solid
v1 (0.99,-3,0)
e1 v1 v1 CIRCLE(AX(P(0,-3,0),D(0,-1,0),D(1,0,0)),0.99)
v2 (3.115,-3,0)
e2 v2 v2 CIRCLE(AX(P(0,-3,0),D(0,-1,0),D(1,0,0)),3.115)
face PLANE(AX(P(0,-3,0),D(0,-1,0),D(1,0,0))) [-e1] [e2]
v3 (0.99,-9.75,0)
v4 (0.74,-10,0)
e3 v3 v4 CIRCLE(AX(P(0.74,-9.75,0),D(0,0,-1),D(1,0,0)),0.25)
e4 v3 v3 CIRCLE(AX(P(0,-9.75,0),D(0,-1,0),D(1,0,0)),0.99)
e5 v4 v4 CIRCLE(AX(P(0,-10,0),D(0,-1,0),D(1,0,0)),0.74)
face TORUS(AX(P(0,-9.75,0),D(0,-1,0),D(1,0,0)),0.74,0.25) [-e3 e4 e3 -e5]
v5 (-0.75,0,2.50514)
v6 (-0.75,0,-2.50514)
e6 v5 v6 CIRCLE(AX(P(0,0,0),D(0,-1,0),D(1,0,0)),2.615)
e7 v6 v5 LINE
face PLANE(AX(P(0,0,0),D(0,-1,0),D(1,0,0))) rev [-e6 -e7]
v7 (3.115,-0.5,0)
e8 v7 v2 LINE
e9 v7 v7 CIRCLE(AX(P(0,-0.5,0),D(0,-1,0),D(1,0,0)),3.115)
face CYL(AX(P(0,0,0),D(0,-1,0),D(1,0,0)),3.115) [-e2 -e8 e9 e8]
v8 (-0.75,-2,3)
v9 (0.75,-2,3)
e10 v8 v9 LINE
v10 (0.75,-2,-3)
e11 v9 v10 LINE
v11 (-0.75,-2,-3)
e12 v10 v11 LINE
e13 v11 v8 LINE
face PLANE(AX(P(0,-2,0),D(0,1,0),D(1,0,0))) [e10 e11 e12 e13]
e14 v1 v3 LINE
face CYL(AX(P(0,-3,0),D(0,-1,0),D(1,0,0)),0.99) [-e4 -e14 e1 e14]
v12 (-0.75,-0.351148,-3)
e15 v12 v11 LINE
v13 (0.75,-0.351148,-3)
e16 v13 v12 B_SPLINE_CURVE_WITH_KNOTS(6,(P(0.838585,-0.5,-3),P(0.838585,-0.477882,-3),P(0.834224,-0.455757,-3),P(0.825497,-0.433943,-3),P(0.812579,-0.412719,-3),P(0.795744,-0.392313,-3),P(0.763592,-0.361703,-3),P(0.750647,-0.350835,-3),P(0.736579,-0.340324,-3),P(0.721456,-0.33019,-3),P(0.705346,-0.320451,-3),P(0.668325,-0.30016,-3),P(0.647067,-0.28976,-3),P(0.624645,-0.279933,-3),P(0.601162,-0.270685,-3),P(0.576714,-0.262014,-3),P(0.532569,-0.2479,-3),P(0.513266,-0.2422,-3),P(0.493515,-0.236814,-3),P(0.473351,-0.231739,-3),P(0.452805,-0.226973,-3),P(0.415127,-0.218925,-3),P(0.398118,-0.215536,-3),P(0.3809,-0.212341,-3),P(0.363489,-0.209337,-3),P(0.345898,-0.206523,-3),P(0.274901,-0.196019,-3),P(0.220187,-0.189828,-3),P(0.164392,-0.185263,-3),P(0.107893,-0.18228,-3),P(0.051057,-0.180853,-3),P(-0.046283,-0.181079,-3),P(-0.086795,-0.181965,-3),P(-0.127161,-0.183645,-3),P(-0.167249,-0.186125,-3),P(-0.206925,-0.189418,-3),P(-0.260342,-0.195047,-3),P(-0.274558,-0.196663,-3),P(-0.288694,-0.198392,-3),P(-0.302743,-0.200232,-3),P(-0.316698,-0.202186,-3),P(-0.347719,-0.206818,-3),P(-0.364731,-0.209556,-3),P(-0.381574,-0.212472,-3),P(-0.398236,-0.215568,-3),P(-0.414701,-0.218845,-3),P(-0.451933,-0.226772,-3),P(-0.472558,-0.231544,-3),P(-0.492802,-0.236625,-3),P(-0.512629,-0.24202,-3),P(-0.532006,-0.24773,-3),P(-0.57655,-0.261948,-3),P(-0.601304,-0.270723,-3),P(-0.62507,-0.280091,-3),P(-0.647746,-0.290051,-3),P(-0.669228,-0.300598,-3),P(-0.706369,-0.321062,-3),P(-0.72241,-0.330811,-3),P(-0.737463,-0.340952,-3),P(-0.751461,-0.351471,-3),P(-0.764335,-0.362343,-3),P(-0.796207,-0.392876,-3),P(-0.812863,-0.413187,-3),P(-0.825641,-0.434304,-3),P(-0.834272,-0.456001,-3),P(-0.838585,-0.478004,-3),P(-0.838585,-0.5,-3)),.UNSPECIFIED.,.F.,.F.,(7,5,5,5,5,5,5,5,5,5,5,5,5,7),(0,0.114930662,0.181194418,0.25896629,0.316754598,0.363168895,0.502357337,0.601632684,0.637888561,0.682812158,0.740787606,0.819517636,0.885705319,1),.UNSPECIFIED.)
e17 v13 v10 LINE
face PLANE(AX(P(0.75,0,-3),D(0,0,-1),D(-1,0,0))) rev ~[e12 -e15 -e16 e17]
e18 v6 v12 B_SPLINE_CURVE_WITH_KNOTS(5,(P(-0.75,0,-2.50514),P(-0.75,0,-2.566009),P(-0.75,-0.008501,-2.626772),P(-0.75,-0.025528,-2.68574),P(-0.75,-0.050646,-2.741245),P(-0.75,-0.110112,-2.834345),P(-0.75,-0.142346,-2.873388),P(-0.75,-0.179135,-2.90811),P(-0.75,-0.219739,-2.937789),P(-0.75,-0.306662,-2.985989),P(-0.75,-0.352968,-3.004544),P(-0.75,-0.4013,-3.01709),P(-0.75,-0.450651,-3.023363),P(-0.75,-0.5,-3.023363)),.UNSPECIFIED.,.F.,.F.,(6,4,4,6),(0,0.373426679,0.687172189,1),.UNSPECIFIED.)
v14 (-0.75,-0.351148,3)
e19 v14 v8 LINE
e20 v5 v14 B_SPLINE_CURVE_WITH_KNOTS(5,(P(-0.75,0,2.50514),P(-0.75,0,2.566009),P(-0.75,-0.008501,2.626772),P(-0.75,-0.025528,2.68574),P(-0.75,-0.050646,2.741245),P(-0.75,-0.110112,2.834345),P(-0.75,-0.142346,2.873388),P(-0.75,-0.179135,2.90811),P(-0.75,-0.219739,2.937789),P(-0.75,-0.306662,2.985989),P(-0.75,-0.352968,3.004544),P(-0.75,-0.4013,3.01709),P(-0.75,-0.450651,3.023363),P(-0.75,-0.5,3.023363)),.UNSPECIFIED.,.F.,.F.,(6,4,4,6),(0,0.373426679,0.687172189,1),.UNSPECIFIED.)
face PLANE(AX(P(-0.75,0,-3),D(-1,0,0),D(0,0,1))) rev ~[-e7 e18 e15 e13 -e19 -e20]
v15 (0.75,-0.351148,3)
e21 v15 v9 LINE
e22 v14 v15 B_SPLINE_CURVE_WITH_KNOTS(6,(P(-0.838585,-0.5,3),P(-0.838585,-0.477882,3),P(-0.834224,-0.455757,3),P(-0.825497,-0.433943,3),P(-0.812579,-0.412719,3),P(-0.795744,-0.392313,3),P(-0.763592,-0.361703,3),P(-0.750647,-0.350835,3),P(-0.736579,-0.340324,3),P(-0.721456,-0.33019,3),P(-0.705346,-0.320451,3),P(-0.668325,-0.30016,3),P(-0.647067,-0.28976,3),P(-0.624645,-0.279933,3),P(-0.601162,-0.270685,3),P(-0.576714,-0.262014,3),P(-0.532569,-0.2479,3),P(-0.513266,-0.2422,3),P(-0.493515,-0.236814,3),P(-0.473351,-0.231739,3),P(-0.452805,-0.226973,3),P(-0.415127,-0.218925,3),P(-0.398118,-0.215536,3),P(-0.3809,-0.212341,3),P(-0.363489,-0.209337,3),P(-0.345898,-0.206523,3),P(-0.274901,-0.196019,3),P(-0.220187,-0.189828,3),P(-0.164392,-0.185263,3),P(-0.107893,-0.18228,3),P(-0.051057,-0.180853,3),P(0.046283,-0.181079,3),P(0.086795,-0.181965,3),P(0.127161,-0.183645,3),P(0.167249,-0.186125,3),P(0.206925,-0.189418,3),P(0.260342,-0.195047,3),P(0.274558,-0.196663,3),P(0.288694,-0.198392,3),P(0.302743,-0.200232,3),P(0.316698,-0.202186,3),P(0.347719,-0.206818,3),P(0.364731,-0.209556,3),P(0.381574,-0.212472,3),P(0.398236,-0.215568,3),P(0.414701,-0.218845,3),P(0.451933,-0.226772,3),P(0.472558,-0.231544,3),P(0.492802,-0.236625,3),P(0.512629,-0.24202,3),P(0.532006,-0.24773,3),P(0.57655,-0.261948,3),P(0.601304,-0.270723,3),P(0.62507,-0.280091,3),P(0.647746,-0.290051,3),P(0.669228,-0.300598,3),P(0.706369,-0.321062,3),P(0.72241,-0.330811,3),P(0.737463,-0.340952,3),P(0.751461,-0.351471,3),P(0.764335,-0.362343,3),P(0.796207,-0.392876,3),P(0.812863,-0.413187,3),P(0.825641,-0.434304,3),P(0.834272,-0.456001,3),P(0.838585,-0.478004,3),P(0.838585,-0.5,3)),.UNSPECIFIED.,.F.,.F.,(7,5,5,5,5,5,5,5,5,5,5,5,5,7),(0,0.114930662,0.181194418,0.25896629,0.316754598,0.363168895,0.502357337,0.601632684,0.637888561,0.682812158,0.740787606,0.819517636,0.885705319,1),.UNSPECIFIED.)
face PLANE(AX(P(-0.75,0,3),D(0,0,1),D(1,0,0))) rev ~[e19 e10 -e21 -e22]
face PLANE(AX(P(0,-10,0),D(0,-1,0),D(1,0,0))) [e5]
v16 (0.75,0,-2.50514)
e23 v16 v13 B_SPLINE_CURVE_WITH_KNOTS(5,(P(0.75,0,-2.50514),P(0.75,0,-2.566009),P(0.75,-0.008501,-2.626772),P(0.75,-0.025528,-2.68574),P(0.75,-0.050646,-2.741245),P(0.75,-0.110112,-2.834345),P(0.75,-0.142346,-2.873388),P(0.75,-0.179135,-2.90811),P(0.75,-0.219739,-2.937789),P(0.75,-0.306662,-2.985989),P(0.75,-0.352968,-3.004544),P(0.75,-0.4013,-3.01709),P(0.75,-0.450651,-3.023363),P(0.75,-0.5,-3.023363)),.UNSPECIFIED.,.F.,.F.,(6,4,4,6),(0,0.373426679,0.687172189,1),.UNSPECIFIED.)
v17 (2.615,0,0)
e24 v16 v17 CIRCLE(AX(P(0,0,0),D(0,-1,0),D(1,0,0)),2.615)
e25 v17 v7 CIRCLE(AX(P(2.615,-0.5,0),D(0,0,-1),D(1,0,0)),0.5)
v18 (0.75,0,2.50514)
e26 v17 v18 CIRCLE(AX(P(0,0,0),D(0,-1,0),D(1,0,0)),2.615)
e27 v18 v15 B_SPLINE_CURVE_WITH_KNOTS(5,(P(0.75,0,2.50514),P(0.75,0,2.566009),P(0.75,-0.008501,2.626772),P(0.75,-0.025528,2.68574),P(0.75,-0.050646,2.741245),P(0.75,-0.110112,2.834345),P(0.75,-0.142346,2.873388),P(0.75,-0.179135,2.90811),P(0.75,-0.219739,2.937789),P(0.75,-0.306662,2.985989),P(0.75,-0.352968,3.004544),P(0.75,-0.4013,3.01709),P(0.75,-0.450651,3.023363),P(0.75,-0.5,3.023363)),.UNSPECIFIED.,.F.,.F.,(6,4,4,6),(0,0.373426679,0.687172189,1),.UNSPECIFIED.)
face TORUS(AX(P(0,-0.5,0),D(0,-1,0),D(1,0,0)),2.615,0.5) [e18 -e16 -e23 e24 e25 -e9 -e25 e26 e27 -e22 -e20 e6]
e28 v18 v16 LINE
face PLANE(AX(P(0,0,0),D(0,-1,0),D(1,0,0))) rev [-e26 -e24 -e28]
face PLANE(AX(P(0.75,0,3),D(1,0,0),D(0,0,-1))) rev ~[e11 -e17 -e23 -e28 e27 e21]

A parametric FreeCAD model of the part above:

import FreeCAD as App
import Part
import Sketcher


def edges_at(feature, points):
    """Names of the edges that pass closest to the given points."""
    edges = feature.Shape.Edges
    near = lambda p: min(range(len(edges)), key=lambda i: edges[i].distToShape(Part.Vertex(*p))[0])
    return sorted({f"Edge{near(p) + 1}" for p in points})

doc = App.newDocument("Part")
body = doc.addObject("PartDesign::Body", "Body")

sketch1 = body.newObject("Sketcher::SketchObject", "Sketch")
sketch1.AttachmentSupport = (doc.getObject("XY_Plane"), [""])
sketch1.MapMode = "FlatFace"
sketch1.addGeometry(Part.LineSegment(App.Vector(3.115, 0, 0), App.Vector(0, 0, 0)), False)
sketch1.addGeometry(Part.LineSegment(App.Vector(0, 0, 0), App.Vector(0, -10, 0)), False)
sketch1.addGeometry(Part.LineSegment(App.Vector(0, -10, 0), App.Vector(0.99, -10, 0)), False)
sketch1.addGeometry(Part.LineSegment(App.Vector(0.99, -10, 0), App.Vector(0.99, -3, 0)), False)
sketch1.addGeometry(Part.LineSegment(App.Vector(0.99, -3, 0), App.Vector(3.115, -3, 0)), False)
sketch1.addGeometry(Part.LineSegment(App.Vector(3.115, -3, 0), App.Vector(3.115, 0, 0)), False)
sketch1.addConstraint(Sketcher.Constraint("Coincident", 0, 2, 1, 1))
sketch1.addConstraint(Sketcher.Constraint("Coincident", 1, 2, 2, 1))
sketch1.addConstraint(Sketcher.Constraint("Coincident", 2, 2, 3, 1))
sketch1.addConstraint(Sketcher.Constraint("Coincident", 3, 2, 4, 1))
sketch1.addConstraint(Sketcher.Constraint("Coincident", 4, 2, 5, 1))
sketch1.addConstraint(Sketcher.Constraint("Coincident", 5, 2, 0, 1))
sketch1.addConstraint(Sketcher.Constraint("Horizontal", 0))
sketch1.addConstraint(Sketcher.Constraint("Vertical", 1))
sketch1.addConstraint(Sketcher.Constraint("Horizontal", 2))
sketch1.addConstraint(Sketcher.Constraint("Vertical", 3))
sketch1.addConstraint(Sketcher.Constraint("Horizontal", 4))
sketch1.addConstraint(Sketcher.Constraint("Vertical", 5))
sketch1.addConstraint(Sketcher.Constraint("Coincident", 0, 2, -1, 1))
sketch1.addConstraint(Sketcher.Constraint("DistanceY", 1, 2, 1, 1, 10.0))
sketch1.addConstraint(Sketcher.Constraint("DistanceY", 3, 1, 3, 2, 7.0))
sketch1.addConstraint(Sketcher.Constraint("DistanceX", 2, 1, 2, 2, 0.99))
sketch1.addConstraint(Sketcher.Constraint("DistanceX", 0, 2, 0, 1, 3.115))
revolution = body.newObject("PartDesign::Revolution", "Revolution")
revolution.Profile = sketch1
revolution.ReferenceAxis = (sketch1, ["V_Axis"])
revolution.Angle = 360
doc.recompute()

fillet = body.newObject("PartDesign::Fillet", "Fillet")
fillet.Base = (revolution, edges_at(revolution, [(-3.115, 0, 0)]))
fillet.Radius = 0.5
doc.recompute()

fillet2 = body.newObject("PartDesign::Fillet", "Fillet001")
fillet2.Base = (fillet, edges_at(fillet, [(-0.99, -10, 0)]))
fillet2.Radius = 0.25

sketch2 = body.newObject("Sketcher::SketchObject", "Sketch001")
sketch2.AttachmentSupport = (doc.getObject("XZ_Plane"), [""])
sketch2.MapMode = "FlatFace"
sketch2.addGeometry(Part.LineSegment(App.Vector(0.75, 3, 0), App.Vector(0.75, -3, 0)), False)
sketch2.addGeometry(Part.LineSegment(App.Vector(0.75, -3, 0), App.Vector(-0.75, -3, 0)), False)
sketch2.addGeometry(Part.LineSegment(App.Vector(-0.75, -3, 0), App.Vector(-0.75, 3, 0)), False)
sketch2.addGeometry(Part.LineSegment(App.Vector(-0.75, 3, 0), App.Vector(0.75, 3, 0)), False)
sketch2.addConstraint(Sketcher.Constraint("Coincident", 0, 2, 1, 1))
sketch2.addConstraint(Sketcher.Constraint("Coincident", 1, 2, 2, 1))
sketch2.addConstraint(Sketcher.Constraint("Coincident", 2, 2, 3, 1))
sketch2.addConstraint(Sketcher.Constraint("Coincident", 3, 2, 0, 1))
sketch2.addConstraint(Sketcher.Constraint("Vertical", 0))
sketch2.addConstraint(Sketcher.Constraint("Horizontal", 1))
sketch2.addConstraint(Sketcher.Constraint("Vertical", 2))
sketch2.addConstraint(Sketcher.Constraint("Horizontal", 3))
sketch2.addConstraint(Sketcher.Constraint("Symmetric", 0, 2, 2, 2, -1, 1))
sketch2.addConstraint(Sketcher.Constraint("DistanceY", 0, 2, 0, 1, 6.0))
sketch2.addConstraint(Sketcher.Constraint("DistanceX", 1, 2, 1, 1, 1.5))
pocket1 = body.newObject("PartDesign::Pocket", "Pocket")
pocket1.Profile = sketch2
pocket1.Length = 2
pocket1.Reversed = True

doc.recompute()
